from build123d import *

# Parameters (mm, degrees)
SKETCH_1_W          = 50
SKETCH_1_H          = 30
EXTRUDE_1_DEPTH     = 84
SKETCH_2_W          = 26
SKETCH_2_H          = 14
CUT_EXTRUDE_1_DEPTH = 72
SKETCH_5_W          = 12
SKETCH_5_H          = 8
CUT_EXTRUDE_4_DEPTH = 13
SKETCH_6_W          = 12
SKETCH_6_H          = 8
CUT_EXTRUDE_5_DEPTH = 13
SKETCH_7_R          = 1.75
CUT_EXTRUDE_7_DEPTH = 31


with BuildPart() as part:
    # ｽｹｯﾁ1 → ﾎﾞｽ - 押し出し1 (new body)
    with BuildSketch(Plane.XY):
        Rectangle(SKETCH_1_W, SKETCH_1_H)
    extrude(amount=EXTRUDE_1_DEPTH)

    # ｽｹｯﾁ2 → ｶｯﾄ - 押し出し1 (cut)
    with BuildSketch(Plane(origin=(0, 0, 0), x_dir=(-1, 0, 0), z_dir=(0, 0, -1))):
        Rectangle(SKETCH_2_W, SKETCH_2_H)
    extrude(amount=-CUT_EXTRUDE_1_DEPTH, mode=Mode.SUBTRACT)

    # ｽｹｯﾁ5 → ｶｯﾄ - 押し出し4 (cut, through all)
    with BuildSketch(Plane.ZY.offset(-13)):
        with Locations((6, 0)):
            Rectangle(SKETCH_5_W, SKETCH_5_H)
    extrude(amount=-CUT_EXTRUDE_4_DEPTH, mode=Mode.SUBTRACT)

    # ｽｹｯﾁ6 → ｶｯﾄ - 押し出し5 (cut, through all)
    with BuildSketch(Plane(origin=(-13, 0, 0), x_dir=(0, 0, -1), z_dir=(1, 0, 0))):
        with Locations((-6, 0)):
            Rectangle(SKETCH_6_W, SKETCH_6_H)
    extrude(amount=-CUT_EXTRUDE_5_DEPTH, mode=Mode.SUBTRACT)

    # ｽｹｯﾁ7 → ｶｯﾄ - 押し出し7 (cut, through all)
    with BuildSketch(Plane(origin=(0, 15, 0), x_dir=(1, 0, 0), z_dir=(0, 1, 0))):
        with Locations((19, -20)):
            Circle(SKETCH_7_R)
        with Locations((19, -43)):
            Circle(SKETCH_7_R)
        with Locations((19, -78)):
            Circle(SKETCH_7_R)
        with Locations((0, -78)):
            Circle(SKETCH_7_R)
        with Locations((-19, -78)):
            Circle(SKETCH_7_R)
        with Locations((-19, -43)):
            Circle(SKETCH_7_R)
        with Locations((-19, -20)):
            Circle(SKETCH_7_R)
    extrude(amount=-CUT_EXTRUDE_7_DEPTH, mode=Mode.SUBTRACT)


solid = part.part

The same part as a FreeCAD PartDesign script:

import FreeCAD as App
import Part
import Sketcher

V = App.Vector
Q = App.Units.Quantity

doc = App.newDocument("Part")
body = doc.addObject("PartDesign::Body", "Body")

# Sketch on XY plane
sketch1 = doc.addObject("Sketcher::SketchObject", "Sketch")
body.addObject(sketch1)
sketch1.AttachmentSupport = (doc.XY_Plane, [""])
sketch1.MapMode = "FlatFace"
sketch1.addGeometry([
    Part.LineSegment(V(-25, 15, 0), V(-25, -15, 0)),
    Part.LineSegment(V(-25, -15, 0), V(25, -15, 0)),
    Part.LineSegment(V(25, -15, 0), V(25, 15, 0)),
    Part.LineSegment(V(25, 15, 0), V(-25, 15, 0)),
], False)
sketch1.addConstraint([
    Sketcher.Constraint("Coincident", 0, 2, 1, 1),
    Sketcher.Constraint("Coincident", 1, 2, 2, 1),
    Sketcher.Constraint("Coincident", 2, 2, 3, 1),
    Sketcher.Constraint("Coincident", 3, 2, 0, 1),
    Sketcher.Constraint("Vertical", 0),
    Sketcher.Constraint("Horizontal", 1),
    Sketcher.Constraint("Vertical", 2),
    Sketcher.Constraint("Horizontal", 3),
    Sketcher.Constraint("Symmetric", 0, 2, 2, 2, -1, 1),
    Sketcher.Constraint("DistanceX", 1, 1, 1, 2, Q("50 mm")),
    Sketcher.Constraint("DistanceY", 0, 2, 0, 1, Q("30 mm")),
])
pad1 = doc.addObject("PartDesign::Pad", "Pad")
body.addObject(pad1)
pad1.Profile = sketch1
pad1.Length = 84

# Sketch on XY plane
sketch2 = doc.addObject("Sketcher::SketchObject", "Sketch001")
body.addObject(sketch2)
sketch2.AttachmentSupport = (doc.XY_Plane, [""])
sketch2.MapMode = "FlatFace"
sketch2.addGeometry([
    Part.LineSegment(V(13, 7, 0), V(13, -7, 0)),
    Part.LineSegment(V(13, -7, 0), V(-13, -7, 0)),
    Part.LineSegment(V(-13, -7, 0), V(-13, 7, 0)),
    Part.LineSegment(V(-13, 7, 0), V(13, 7, 0)),
], False)
sketch2.addConstraint([
    Sketcher.Constraint("Coincident", 0, 2, 1, 1),
    Sketcher.Constraint("Coincident", 1, 2, 2, 1),
    Sketcher.Constraint("Coincident", 2, 2, 3, 1),
    Sketcher.Constraint("Coincident", 3, 2, 0, 1),
    Sketcher.Constraint("Vertical", 0),
    Sketcher.Constraint("Horizontal", 1),
    Sketcher.Constraint("Vertical", 2),
    Sketcher.Constraint("Horizontal", 3),
    Sketcher.Constraint("Symmetric", 0, 2, 2, 2, -1, 1),
    Sketcher.Constraint("DistanceX", 1, 2, 1, 1, Q("26 mm")),
    Sketcher.Constraint("DistanceY", 0, 2, 0, 1, Q("14 mm")),
])
pocket1 = doc.addObject("PartDesign::Pocket", "Pocket")
body.addObject(pocket1)
pocket1.Profile = sketch2
pocket1.Length = 72
pocket1.Reversed = True

# Sketch on YZ plane
sketch3 = doc.addObject("Sketcher::SketchObject", "Sketch002")
body.addObject(sketch3)
sketch3.AttachmentSupport = (doc.YZ_Plane, [""])
sketch3.MapMode = "FlatFace"
sketch3.AttachmentOffset = App.Placement(V(0, 0, 13), App.Rotation())
sketch3.addGeometry([
    Part.LineSegment(V(4, 0, 0), V(-4, 0, 0)),
    Part.LineSegment(V(-4, 0, 0), V(-4, 12, 0)),
    Part.LineSegment(V(-4, 12, 0), V(4, 12, 0)),
    Part.LineSegment(V(4, 12, 0), V(4, 0, 0)),
], False)
sketch3.addConstraint([
    Sketcher.Constraint("Coincident", 0, 2, 1, 1),
    Sketcher.Constraint("Coincident", 1, 2, 2, 1),
    Sketcher.Constraint("Coincident", 2, 2, 3, 1),
    Sketcher.Constraint("Coincident", 3, 2, 0, 1),
    Sketcher.Constraint("Horizontal", 0),
    Sketcher.Constraint("Vertical", 1),
    Sketcher.Constraint("Horizontal", 2),
    Sketcher.Constraint("Vertical", 3),
    Sketcher.Constraint("Symmetric", 0, 2, 3, 2, -1, 1),
    Sketcher.Constraint("DistanceX", 0, 2, 0, 1, Q("8 mm")),
    Sketcher.Constraint("DistanceY", 1, 1, 1, 2, Q("12 mm")),
])
pocket2 = doc.addObject("PartDesign::Pocket", "Pocket001")
body.addObject(pocket2)
pocket2.Profile = sketch3
pocket2.Type = "ThroughAll"
pocket2.Reversed = True

# Sketch on YZ plane
sketch4 = doc.addObject("Sketcher::SketchObject", "Sketch003")
body.addObject(sketch4)
sketch4.AttachmentSupport = (doc.YZ_Plane, [""])
sketch4.MapMode = "FlatFace"
sketch4.AttachmentOffset = App.Placement(V(0, 0, -13), App.Rotation())
sketch4.addGeometry([
    Part.LineSegment(V(4, 12, 0), V(-4, 12, 0)),
    Part.LineSegment(V(-4, 12, 0), V(-4, 0, 0)),
    Part.LineSegment(V(-4, 0, 0), V(4, 0, 0)),
    Part.LineSegment(V(4, 0, 0), V(4, 12, 0)),
], False)
sketch4.addConstraint([
    Sketcher.Constraint("Coincident", 0, 2, 1, 1),
    Sketcher.Constraint("Coincident", 1, 2, 2, 1),
    Sketcher.Constraint("Coincident", 2, 2, 3, 1),
    Sketcher.Constraint("Coincident", 3, 2, 0, 1),
    Sketcher.Constraint("Horizontal", 0),
    Sketcher.Constraint("Vertical", 1),
    Sketcher.Constraint("Horizontal", 2),
    Sketcher.Constraint("Vertical", 3),
    Sketcher.Constraint("Symmetric", 1, 2, 2, 2, -1, 1),
    Sketcher.Constraint("DistanceX", 0, 2, 0, 1, Q("8 mm")),
    Sketcher.Constraint("DistanceY", 1, 2, 1, 1, Q("12 mm")),
])
pocket3 = doc.addObject("PartDesign::Pocket", "Pocket002")
body.addObject(pocket3)
pocket3.Profile = sketch4
pocket3.Type = "ThroughAll"

# Sketch on XZ plane
sketch5 = doc.addObject("Sketcher::SketchObject", "Sketch004")
body.addObject(sketch5)
sketch5.AttachmentSupport = (doc.XZ_Plane, [""])
sketch5.MapMode = "FlatFace"
sketch5.AttachmentOffset = App.Placement(V(0, 0, -15), App.Rotation())
sketch5.addGeometry([
    Part.Circle(V(19, 20, 0), V(0, 0, 1), 1.75),  # 0
    Part.Circle(V(19, 43, 0), V(0, 0, 1), 1.75),  # 1
    Part.Circle(V(19, 78, 0), V(0, 0, 1), 1.75),  # 2
    Part.Circle(V(0, 78, 0), V(0, 0, 1), 1.75),  # 3
    Part.Circle(V(-19, 78, 0), V(0, 0, 1), 1.75),  # 4
    Part.Circle(V(-19, 43, 0), V(0, 0, 1), 1.75),  # 5
    Part.Circle(V(-19, 20, 0), V(0, 0, 1), 1.75),  # 6
], False)
sketch5.addConstraint([
    Sketcher.Constraint("Equal", 0, 1),
    Sketcher.Constraint("Equal", 1, 2),
    Sketcher.Constraint("Equal", 2, 3),
    Sketcher.Constraint("Equal", 3, 4),
    Sketcher.Constraint("Equal", 4, 5),
    Sketcher.Constraint("Equal", 5, 6),
    Sketcher.Constraint("Symmetric", 2, 3, 4, 3, -2),
    Sketcher.Constraint("Symmetric", 1, 3, 5, 3, -2),
    Sketcher.Constraint("Symmetric", 0, 3, 6, 3, -2),
    Sketcher.Constraint("PointOnObject", 3, 3, -2),
    Sketcher.Constraint("Horizontal", 2, 3, 3, 3),
    Sketcher.Constraint("Vertical", 0, 3, 1, 3),
    Sketcher.Constraint("Vertical", 1, 3, 2, 3),
    Sketcher.Constraint("Diameter", 0, Q("3.5 mm")),
    Sketcher.Constraint("DistanceX", -1, 1, 0, 3, Q("19 mm")),
    Sketcher.Constraint("DistanceY", -1, 1, 0, 3, Q("20 mm")),
    Sketcher.Constraint("DistanceY", -1, 1, 1, 3, Q("43 mm")),
    Sketcher.Constraint("DistanceY", -1, 1, 2, 3, Q("78 mm")),
])
pocket4 = doc.addObject("PartDesign::Pocket", "Pocket003")
body.addObject(pocket4)
pocket4.Profile = sketch5
pocket4.Type = "ThroughAll"
pocket4.Reversed = True

doc.recompute()
